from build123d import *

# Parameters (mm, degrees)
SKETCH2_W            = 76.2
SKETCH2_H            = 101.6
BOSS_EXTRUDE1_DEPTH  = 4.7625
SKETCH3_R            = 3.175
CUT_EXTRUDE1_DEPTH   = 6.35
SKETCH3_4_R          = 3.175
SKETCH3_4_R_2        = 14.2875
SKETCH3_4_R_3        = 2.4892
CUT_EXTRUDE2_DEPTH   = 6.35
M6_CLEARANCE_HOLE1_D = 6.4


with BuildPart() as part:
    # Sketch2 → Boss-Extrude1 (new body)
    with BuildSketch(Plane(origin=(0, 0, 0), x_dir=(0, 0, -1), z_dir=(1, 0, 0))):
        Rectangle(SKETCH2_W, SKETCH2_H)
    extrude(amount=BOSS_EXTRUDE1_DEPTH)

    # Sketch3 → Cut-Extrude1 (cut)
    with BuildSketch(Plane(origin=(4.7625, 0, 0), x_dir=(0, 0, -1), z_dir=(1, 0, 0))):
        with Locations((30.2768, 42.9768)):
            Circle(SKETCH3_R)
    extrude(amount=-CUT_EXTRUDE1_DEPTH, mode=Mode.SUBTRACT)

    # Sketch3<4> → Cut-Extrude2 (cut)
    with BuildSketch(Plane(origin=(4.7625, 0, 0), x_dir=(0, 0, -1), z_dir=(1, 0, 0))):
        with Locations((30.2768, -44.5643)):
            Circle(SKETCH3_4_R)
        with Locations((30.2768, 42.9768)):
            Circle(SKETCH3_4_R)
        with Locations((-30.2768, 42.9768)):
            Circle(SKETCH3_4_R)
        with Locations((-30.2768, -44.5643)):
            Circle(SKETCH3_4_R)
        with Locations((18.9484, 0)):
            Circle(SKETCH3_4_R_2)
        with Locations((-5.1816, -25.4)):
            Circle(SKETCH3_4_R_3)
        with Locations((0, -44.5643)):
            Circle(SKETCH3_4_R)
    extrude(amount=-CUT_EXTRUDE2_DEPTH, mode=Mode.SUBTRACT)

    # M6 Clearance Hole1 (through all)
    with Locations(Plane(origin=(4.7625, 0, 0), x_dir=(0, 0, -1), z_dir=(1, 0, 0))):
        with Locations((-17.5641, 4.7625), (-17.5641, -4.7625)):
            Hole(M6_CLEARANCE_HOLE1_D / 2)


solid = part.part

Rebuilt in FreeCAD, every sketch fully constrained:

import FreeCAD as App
import Part
import Sketcher
from FreeCAD import Vector
Q = App.Units.Quantity

doc = App.newDocument("Part")
params = doc.addObject("Spreadsheet::Sheet", "Params")
for row, (alias, value) in enumerate([
    ("sketch1_width", "4 in"),
    ("sketch1_height", "3 in"),
    ("pad1_length", "0.1875 in"),
    ("sketch2_diameter", "0.25 in"),
    ("pocket1_length", "0.25 in"),
    ("sketch3_diameter", "0.25 in"),
    ("sketch3_diameter2", "1.125 in"),
    ("sketch3_diameter3", "0.196 in"),
    ("pocket2_length", "0.25 in"),
    ("hole_diameter", "6.4 mm"),
], start=1):
    params.set(f"A{row}", alias)
    params.set(f"B{row}", "=" + value)
    params.setAlias(f"B{row}", alias)

body = doc.addObject("PartDesign::Body", "Body")

sketch1 = body.newObject("Sketcher::SketchObject", "Sketch")
sketch1.AttachmentSupport = (doc.getObject("YZ_Plane"), [""])
sketch1.MapMode = "FlatFace"
sketch1.addGeometry([
    Part.LineSegment(Vector(51, 38, 0), Vector(-51, 38, 0)),
    Part.LineSegment(Vector(-51, 38, 0), Vector(-51, -38, 0)),
    Part.LineSegment(Vector(-51, -38, 0), Vector(51, -38, 0)),
    Part.LineSegment(Vector(51, -38, 0), Vector(51, 38, 0)),
], False)
sketch1.addConstraint([
    Sketcher.Constraint("Coincident", 0, 2, 1, 1),
    Sketcher.Constraint("Coincident", 1, 2, 2, 1),
    Sketcher.Constraint("Coincident", 2, 2, 3, 1),
    Sketcher.Constraint("Coincident", 3, 2, 0, 1),
    Sketcher.Constraint("Horizontal", 0),
    Sketcher.Constraint("Vertical", 1),
    Sketcher.Constraint("Horizontal", 2),
    Sketcher.Constraint("Vertical", 3),
    Sketcher.Constraint("Symmetric", 0, 2, 2, 2, -1, 1),
    Sketcher.Constraint("DistanceX", 0, 2, 0, 1, Q("4 in")),
    Sketcher.Constraint("DistanceY", 1, 2, 1, 1, Q("3 in")),
])
sketch1.setExpression("Constraints[9]", "Params.sketch1_width")
sketch1.setExpression("Constraints[10]", "Params.sketch1_height")
pad1 = body.newObject("PartDesign::Pad", "Pad")
pad1.Profile = sketch1
pad1.setExpression("Length", "Params.pad1_length")

sketch2 = body.newObject("Sketcher::SketchObject", "Sketch001")
sketch2.AttachmentSupport = (doc.getObject("YZ_Plane"), [""])
sketch2.MapMode = "FlatFace"
sketch2.AttachmentOffset = App.Placement(Vector(0, 0, 0.1875 * 25.4), App.Rotation())
sketch2.addGeometry(Part.Circle(Vector(43, -30.3, 0), Vector(0, 0, 1), 3.2), False)
sketch2.addConstraint([
    Sketcher.Constraint("Diameter", 0, Q("0.25 in")),
    Sketcher.Constraint("DistanceX", -1, 1, 0, 3, Q("1.692 in")),
    Sketcher.Constraint("DistanceY", 0, 3, -1, 1, Q("1.192 in")),
])
sketch2.setExpression("Constraints[0]", "Params.sketch2_diameter")
pocket1 = body.newObject("PartDesign::Pocket", "Pocket")
pocket1.Profile = sketch2
pocket1.setExpression("Length", "Params.pocket1_length")

sketch3 = body.newObject("Sketcher::SketchObject", "Sketch002")
sketch3.AttachmentSupport = (doc.getObject("YZ_Plane"), [""])
sketch3.MapMode = "FlatFace"
sketch3.AttachmentOffset = App.Placement(Vector(0, 0, 0.1875 * 25.4), App.Rotation())
sketch3.addGeometry([
    Part.Circle(Vector(-44.6, -30.3, 0), Vector(0, 0, 1), 3.2),
    Part.Circle(Vector(43, -30.3, 0), Vector(0, 0, 1), 3.2),
    Part.Circle(Vector(43, 30.3, 0), Vector(0, 0, 1), 3.2),
    Part.Circle(Vector(-44.6, 30.3, 0), Vector(0, 0, 1), 3.2),
    Part.Circle(Vector(0, -18.9, 0), Vector(0, 0, 1), 14.3),
    Part.Circle(Vector(-25.4, 5.2, 0), Vector(0, 0, 1), 2.5),
    Part.Circle(Vector(-44.6, 0, 0), Vector(0, 0, 1), 3.2),
], False)
sketch3.addConstraint([
    Sketcher.Constraint("Equal", 0, 1),
    Sketcher.Constraint("Equal", 1, 2),
    Sketcher.Constraint("Equal", 2, 3),
    Sketcher.Constraint("Equal", 3, 6),
    Sketcher.Constraint("Symmetric", 1, 3, 2, 3, -1),
    Sketcher.Constraint("Symmetric", 0, 3, 3, 3, -1),
    Sketcher.Constraint("PointOnObject", 4, 3, -2),
    Sketcher.Constraint("PointOnObject", 6, 3, -1),
    Sketcher.Constraint("Horizontal", 0, 3, 1, 3),
    Sketcher.Constraint("Vertical", 3, 3, 6, 3),
    Sketcher.Constraint("Diameter", 0, Q("0.25 in")),
    Sketcher.Constraint("Diameter", 4, Q("1.125 in")),
    Sketcher.Constraint("Diameter", 5, Q("0.196 in")),
    Sketcher.Constraint("DistanceX", 5, 3, -1, 1, Q("1 in")),
    Sketcher.Constraint("DistanceY", 4, 3, 5, 3, Q("0.95 in")),
    Sketcher.Constraint("DistanceY", 0, 3, -1, 1, Q("1.192 in")),
    Sketcher.Constraint("DistanceX", -1, 1, 1, 3, Q("1.692 in")),
    Sketcher.Constraint("DistanceY", 4, 3, -1, 1, Q("0.746 in")),
    Sketcher.Constraint("DistanceX", 0, 3, -1, 1, Q("1.7545 in")),
])
sketch3.setExpression("Constraints[10]", "Params.sketch3_diameter")
sketch3.setExpression("Constraints[11]", "Params.sketch3_diameter2")
sketch3.setExpression("Constraints[12]", "Params.sketch3_diameter3")
pocket2 = body.newObject("PartDesign::Pocket", "Pocket001")
pocket2.Profile = sketch3
pocket2.setExpression("Length", "Params.pocket2_length")

sketch4 = body.newObject("Sketcher::SketchObject", "Sketch003")
sketch4.AttachmentSupport = (doc.getObject("YZ_Plane"), [""])
sketch4.MapMode = "FlatFace"
sketch4.AttachmentOffset = App.Placement(Vector(0, 0, 0.1875 * 25.4), App.Rotation())
sketch4.addGeometry([
    Part.Circle(Vector(4.8, 17.6, 0), Vector(0, 0, 1), 3.2),
    Part.Circle(Vector(-4.8, 17.6, 0), Vector(0, 0, 1), 3.2),
], False)
sketch4.addConstraint([
    Sketcher.Constraint("Equal", 0, 1),
    Sketcher.Constraint("Symmetric", 0, 3, 1, 3, -2),
    Sketcher.Constraint("Diameter", 0, Q("6.4 mm")),
    Sketcher.Constraint("DistanceX", -1, 1, 0, 3, Q("0.1875 in")),
    Sketcher.Constraint("DistanceY", -1, 1, 0, 3, Q("0.6915 in")),
])
doc.recompute()
hole = body.newObject("PartDesign::Hole", "Hole")
hole.Profile = sketch4
hole.ThreadType = "None"
hole.setExpression("Diameter", "Params.hole_diameter")
hole.DepthType = "ThroughAll"

doc.recompute()
